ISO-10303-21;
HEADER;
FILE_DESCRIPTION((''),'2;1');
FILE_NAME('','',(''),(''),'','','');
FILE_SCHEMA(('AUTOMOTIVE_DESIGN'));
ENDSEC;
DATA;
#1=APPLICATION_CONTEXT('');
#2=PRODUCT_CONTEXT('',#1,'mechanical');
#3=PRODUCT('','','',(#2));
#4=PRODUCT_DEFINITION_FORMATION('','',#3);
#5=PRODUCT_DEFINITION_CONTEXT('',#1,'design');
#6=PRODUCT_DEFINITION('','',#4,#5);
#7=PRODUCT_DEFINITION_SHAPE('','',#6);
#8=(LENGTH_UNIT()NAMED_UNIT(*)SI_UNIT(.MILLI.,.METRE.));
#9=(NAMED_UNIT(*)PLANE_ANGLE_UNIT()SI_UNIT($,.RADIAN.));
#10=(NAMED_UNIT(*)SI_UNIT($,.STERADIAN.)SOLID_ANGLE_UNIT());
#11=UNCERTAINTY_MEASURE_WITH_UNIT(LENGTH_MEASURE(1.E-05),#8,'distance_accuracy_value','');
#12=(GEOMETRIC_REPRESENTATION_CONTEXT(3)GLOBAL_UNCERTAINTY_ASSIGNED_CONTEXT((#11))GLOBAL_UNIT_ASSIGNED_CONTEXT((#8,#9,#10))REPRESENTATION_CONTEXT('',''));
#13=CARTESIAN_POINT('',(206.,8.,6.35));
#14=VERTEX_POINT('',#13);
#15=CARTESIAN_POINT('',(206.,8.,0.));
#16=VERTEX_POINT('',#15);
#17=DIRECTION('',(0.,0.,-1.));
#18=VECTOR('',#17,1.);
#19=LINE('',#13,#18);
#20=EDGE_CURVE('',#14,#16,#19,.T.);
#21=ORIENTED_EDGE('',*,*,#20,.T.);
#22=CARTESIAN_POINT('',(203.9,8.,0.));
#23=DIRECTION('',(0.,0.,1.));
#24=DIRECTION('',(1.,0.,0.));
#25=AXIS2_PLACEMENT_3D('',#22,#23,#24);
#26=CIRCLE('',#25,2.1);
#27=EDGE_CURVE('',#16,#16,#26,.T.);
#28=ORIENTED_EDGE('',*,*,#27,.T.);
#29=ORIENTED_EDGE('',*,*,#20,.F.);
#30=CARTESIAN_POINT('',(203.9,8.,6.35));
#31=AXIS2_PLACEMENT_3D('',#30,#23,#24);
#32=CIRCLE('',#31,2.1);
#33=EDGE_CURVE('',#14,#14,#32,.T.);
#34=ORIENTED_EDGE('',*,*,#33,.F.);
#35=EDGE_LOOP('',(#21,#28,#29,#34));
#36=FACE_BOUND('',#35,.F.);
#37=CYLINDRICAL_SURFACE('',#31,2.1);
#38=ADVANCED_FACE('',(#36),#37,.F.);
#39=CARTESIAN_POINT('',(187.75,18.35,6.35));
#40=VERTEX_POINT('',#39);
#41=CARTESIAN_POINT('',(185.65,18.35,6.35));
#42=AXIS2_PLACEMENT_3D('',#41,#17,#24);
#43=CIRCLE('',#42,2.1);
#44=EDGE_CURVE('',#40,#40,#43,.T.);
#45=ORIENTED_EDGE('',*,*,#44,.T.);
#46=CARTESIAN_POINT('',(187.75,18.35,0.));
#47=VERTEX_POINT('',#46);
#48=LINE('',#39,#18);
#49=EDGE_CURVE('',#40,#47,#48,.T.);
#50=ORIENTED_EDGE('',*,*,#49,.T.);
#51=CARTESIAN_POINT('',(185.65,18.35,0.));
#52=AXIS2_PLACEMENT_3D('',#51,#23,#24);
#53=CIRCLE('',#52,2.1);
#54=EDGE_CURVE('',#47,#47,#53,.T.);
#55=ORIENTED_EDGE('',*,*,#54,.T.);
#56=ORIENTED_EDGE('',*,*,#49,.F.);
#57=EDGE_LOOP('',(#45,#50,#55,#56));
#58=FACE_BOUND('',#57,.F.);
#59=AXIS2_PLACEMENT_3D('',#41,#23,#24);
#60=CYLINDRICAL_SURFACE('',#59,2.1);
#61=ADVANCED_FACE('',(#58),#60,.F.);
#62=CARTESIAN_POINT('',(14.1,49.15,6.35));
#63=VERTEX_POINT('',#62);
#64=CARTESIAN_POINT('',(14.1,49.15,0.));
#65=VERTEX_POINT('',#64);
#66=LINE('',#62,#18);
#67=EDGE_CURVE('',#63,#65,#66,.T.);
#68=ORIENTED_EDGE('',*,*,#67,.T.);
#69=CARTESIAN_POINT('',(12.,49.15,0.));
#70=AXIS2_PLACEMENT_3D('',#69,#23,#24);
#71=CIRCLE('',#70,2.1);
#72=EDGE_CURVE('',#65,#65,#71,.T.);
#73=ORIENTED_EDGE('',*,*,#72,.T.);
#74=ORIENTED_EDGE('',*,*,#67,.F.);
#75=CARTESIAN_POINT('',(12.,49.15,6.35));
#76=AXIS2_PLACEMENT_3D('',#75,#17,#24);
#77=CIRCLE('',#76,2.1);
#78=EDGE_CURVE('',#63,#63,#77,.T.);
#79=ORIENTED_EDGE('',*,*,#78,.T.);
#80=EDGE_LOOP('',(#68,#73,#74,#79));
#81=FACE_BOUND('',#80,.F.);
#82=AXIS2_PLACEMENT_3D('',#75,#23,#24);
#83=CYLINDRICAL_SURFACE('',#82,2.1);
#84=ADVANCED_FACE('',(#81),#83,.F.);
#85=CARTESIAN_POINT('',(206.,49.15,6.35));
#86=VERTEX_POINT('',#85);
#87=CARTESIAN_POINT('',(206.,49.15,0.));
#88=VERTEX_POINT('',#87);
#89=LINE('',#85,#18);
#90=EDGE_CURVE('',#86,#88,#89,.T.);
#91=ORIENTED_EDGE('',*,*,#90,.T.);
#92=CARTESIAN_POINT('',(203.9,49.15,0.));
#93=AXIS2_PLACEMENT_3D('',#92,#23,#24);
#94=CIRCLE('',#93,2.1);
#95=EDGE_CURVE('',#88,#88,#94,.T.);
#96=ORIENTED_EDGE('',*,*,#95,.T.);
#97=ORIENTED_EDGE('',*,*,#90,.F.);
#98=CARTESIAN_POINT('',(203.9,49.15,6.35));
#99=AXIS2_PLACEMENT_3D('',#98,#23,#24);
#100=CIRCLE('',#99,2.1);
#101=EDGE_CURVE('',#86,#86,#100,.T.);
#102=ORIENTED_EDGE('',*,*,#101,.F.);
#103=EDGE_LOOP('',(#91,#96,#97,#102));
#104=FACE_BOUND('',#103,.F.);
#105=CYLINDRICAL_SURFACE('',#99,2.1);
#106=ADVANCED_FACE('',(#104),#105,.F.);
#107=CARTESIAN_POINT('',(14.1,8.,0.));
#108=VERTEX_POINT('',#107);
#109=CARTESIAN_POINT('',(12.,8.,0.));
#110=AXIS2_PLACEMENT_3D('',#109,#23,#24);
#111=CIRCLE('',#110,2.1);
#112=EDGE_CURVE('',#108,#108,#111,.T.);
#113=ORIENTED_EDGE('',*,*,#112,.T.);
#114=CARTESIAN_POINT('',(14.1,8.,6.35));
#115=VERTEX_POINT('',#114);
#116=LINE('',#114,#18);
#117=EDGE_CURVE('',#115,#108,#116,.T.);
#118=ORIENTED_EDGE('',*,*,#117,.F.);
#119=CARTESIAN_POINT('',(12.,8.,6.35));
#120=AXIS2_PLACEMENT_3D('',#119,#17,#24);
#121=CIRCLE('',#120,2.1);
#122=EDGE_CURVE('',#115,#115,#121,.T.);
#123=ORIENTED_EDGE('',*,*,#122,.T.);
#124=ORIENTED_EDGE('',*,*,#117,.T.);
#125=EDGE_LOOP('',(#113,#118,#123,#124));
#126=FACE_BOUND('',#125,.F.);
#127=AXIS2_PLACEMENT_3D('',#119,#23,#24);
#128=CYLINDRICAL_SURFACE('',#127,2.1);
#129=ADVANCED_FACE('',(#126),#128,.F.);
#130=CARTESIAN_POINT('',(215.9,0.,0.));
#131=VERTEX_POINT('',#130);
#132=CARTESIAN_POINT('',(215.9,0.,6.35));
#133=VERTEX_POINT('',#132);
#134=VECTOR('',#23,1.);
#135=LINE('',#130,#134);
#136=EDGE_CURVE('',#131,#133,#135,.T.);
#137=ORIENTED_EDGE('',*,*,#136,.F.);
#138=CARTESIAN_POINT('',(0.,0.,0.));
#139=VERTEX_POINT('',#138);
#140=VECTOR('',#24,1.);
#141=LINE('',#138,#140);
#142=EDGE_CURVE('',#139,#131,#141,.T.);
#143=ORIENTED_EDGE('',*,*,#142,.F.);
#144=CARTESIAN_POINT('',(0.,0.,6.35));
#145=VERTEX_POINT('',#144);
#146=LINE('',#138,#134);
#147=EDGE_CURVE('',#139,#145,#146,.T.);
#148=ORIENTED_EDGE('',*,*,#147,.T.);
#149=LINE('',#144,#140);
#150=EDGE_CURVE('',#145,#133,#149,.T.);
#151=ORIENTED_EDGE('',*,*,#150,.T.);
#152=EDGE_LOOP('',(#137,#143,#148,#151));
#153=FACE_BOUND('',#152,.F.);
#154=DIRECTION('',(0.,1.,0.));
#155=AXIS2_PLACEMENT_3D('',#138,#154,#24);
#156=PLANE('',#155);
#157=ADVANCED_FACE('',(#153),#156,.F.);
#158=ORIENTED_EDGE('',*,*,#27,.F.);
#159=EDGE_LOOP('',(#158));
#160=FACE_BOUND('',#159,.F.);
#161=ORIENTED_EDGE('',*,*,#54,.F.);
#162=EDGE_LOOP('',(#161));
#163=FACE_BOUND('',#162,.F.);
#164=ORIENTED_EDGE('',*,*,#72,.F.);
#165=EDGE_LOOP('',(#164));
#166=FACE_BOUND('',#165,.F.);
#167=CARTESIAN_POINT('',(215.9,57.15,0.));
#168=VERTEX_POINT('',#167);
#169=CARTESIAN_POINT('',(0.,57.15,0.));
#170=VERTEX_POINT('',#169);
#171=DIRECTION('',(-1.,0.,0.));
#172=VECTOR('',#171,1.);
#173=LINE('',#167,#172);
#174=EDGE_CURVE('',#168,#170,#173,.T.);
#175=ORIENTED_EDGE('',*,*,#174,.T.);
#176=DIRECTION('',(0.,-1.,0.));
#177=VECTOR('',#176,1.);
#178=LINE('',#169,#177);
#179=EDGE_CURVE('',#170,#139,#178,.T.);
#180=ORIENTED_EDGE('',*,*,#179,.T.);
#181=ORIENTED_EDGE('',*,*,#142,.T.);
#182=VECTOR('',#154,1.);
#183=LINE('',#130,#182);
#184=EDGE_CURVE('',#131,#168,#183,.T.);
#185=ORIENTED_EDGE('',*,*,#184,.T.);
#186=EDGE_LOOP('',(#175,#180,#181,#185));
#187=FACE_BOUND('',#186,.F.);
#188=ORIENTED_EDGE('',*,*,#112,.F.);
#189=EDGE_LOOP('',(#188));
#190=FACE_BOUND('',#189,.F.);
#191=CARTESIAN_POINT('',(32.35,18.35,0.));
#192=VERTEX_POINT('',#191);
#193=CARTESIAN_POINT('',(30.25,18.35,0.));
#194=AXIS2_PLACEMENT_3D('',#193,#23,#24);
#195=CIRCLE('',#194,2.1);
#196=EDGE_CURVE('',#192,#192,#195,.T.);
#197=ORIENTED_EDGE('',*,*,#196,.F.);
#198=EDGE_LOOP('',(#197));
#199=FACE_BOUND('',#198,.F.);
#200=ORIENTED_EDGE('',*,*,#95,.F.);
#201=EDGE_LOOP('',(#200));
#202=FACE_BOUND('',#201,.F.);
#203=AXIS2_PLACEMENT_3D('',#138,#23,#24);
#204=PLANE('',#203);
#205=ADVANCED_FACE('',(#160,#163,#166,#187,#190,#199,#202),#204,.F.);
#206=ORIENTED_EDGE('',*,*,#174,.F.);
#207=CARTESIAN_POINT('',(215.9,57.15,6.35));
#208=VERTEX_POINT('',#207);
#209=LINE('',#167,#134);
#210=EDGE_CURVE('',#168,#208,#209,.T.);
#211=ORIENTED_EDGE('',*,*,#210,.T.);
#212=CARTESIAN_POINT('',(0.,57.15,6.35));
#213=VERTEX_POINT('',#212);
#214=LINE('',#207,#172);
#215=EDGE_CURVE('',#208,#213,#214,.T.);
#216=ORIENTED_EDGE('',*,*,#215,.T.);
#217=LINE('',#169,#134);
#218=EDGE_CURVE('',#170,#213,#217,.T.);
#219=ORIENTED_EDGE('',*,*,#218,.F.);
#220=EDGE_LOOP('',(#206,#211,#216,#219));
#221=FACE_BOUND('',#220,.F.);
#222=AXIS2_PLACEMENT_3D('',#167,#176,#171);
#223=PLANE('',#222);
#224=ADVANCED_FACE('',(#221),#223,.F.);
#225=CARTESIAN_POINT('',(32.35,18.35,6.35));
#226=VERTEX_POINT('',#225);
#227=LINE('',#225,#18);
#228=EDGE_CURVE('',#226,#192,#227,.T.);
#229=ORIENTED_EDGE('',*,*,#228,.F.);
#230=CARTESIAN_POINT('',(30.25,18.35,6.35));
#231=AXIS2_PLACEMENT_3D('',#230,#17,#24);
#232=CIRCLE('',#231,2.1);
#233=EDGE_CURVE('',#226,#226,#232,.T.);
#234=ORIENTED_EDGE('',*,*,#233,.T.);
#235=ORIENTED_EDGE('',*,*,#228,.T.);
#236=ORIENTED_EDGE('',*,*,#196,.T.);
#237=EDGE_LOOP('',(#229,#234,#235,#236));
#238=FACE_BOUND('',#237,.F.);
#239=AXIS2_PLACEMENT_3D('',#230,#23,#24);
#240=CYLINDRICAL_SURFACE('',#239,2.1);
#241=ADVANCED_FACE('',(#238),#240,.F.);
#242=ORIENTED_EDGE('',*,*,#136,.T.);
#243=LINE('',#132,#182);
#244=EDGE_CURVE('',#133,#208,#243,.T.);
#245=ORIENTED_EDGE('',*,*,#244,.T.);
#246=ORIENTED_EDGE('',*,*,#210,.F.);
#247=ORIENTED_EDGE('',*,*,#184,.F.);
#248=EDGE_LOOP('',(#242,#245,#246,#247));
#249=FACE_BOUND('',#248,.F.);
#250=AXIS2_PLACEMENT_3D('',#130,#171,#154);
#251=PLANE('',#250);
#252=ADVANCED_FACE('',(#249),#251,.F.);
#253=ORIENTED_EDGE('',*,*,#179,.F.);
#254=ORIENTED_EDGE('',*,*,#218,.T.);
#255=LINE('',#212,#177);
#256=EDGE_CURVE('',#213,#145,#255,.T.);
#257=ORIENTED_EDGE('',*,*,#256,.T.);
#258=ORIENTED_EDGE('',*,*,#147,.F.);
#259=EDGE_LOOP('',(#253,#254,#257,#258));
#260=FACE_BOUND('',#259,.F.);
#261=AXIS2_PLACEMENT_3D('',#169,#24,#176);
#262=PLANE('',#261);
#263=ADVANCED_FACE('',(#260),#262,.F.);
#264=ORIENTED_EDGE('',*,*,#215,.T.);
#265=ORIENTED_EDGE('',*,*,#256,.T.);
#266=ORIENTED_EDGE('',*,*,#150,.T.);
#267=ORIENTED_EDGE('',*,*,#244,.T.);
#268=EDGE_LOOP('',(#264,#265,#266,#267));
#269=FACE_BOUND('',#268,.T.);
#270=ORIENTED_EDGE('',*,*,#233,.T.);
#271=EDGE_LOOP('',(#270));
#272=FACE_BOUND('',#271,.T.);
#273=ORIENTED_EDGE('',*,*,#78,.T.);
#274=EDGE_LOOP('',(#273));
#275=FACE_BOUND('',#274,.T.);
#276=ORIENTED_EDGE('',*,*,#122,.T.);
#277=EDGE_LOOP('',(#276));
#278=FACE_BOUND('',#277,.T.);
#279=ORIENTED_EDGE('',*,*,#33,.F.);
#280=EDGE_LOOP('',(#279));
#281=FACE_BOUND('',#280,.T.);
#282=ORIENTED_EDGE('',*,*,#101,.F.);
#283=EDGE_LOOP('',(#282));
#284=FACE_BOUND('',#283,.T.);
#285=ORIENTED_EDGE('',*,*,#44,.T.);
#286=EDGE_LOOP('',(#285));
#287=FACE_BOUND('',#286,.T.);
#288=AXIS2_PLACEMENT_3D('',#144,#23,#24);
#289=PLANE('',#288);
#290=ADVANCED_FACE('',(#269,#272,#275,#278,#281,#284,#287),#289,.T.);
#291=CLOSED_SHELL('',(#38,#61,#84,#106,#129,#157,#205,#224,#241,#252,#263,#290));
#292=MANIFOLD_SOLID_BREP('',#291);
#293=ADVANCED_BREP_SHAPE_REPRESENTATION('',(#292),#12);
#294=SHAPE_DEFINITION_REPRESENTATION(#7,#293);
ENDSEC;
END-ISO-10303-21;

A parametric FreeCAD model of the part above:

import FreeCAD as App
import Part
import Sketcher
from FreeCAD import Vector
Q = App.Units.Quantity


def add_polygon(sketch, points):
    """Adds a closed chain of lines whose ends are joined by coincident constraints."""
    first, n = sketch.GeometryCount, len(points)
    for a, b in zip(points, points[1:] + points[:1]):
        sketch.addGeometry(Part.LineSegment(App.Vector(*a, 0), App.Vector(*b, 0)), False)
    for i in range(n):
        sketch.addConstraint(Sketcher.Constraint("Coincident", first + i, 2, first + (i + 1) % n, 1))

doc = App.newDocument("Part")
body = doc.addObject("PartDesign::Body", "Body")

# Sketch on XY plane
sketch1 = body.newObject("Sketcher::SketchObject", "Sketch")
sketch1.AttachmentSupport = (doc.getObject("XY_Plane"), [""])
sketch1.MapMode = "FlatFace"
add_polygon(sketch1, [(0, 57), (0, 0), (216, 0), (216, 57)])  # lines 0-3
sketch1.addConstraint(Sketcher.Constraint("Vertical", 0))
sketch1.addConstraint(Sketcher.Constraint("Horizontal", 1))
sketch1.addConstraint(Sketcher.Constraint("Vertical", 2))
sketch1.addConstraint(Sketcher.Constraint("Horizontal", 3))
sketch1.addConstraint(Sketcher.Constraint("Coincident", 0, 2, -1, 1))
sketch1.addConstraint(Sketcher.Constraint("DistanceX", 1, 1, 1, 2, Q("8.5 in")))
sketch1.addConstraint(Sketcher.Constraint("DistanceY", 0, 2, 0, 1, Q("2.25 in")))
pad1 = body.newObject("PartDesign::Pad", "Pad")
pad1.Profile = sketch1
pad1.Length = Q("0.25 in")

# Sketch on XY plane
sketch2 = body.newObject("Sketcher::SketchObject", "Sketch001")
sketch2.AttachmentSupport = (doc.getObject("XY_Plane"), [""])
sketch2.MapMode = "FlatFace"
sketch2.AttachmentOffset = App.Placement(Vector(0, 0, 0.25 * 25.4), App.Rotation())
sketch2.addGeometry(Part.Circle(Vector(12, 8, 0), Vector(0, 0, 1), 2.1), False)
sketch2.addGeometry(Part.Circle(Vector(12, 49.1, 0), Vector(0, 0, 1), 2.1), False)
sketch2.addGeometry(Part.Circle(Vector(203.9, 49.1, 0), Vector(0, 0, 1), 2.1), False)
sketch2.addGeometry(Part.Circle(Vector(203.9, 8, 0), Vector(0, 0, 1), 2.1), False)
sketch2.addConstraint(Sketcher.Constraint("Equal", 0, 1))
sketch2.addConstraint(Sketcher.Constraint("Equal", 1, 2))
sketch2.addConstraint(Sketcher.Constraint("Equal", 2, 3))
sketch2.addConstraint(Sketcher.Constraint("Horizontal", 1, 3, 2, 3))
sketch2.addConstraint(Sketcher.Constraint("Horizontal", 0, 3, 3, 3))
sketch2.addConstraint(Sketcher.Constraint("Vertical", 0, 3, 1, 3))
sketch2.addConstraint(Sketcher.Constraint("Vertical", 2, 3, 3, 3))
sketch2.addConstraint(Sketcher.Constraint("Diameter", 0, Q("4.2 mm")))
sketch2.addConstraint(Sketcher.Constraint("DistanceX", -1, 1, 0, 3, Q("12 mm")))
sketch2.addConstraint(Sketcher.Constraint("DistanceY", -1, 1, 0, 3, Q("8 mm")))
sketch2.addConstraint(Sketcher.Constraint("DistanceY", -1, 1, 1, 3, Q("49.15 mm")))
sketch2.addConstraint(Sketcher.Constraint("DistanceX", -1, 1, 2, 3, Q("203.9 mm")))
pocket1 = body.newObject("PartDesign::Pocket", "Pocket")
pocket1.Profile = sketch2
pocket1.Type = "ThroughAll"

# Sketch on XY plane
sketch3 = body.newObject("Sketcher::SketchObject", "Sketch002")
sketch3.AttachmentSupport = (doc.getObject("XY_Plane"), [""])
sketch3.MapMode = "FlatFace"
sketch3.AttachmentOffset = App.Placement(Vector(0, 0, 0.25 * 25.4), App.Rotation())
sketch3.addGeometry(Part.Circle(Vector(185.7, 18.4, 0), Vector(0, 0, 1), 2.1), False)
sketch3.addGeometry(Part.Circle(Vector(30.2, 18.4, 0), Vector(0, 0, 1), 2.1), False)
sketch3.addConstraint(Sketcher.Constraint("Equal", 0, 1))
sketch3.addConstraint(Sketcher.Constraint("Horizontal", 0, 3, 1, 3))
sketch3.addConstraint(Sketcher.Constraint("Diameter", 0, Q("4.2 mm")))
sketch3.addConstraint(Sketcher.Constraint("DistanceY", -1, 1, 0, 3, Q("18.35 mm")))
sketch3.addConstraint(Sketcher.Constraint("DistanceX", -1, 1, 1, 3, Q("30.25 mm")))
sketch3.addConstraint(Sketcher.Constraint("DistanceX", 1, 3, 0, 3, Q("6.1181 in")))
pocket2 = body.newObject("PartDesign::Pocket", "Pocket001")
pocket2.Profile = sketch3
pocket2.Length = Q("1 in")

doc.recompute()
